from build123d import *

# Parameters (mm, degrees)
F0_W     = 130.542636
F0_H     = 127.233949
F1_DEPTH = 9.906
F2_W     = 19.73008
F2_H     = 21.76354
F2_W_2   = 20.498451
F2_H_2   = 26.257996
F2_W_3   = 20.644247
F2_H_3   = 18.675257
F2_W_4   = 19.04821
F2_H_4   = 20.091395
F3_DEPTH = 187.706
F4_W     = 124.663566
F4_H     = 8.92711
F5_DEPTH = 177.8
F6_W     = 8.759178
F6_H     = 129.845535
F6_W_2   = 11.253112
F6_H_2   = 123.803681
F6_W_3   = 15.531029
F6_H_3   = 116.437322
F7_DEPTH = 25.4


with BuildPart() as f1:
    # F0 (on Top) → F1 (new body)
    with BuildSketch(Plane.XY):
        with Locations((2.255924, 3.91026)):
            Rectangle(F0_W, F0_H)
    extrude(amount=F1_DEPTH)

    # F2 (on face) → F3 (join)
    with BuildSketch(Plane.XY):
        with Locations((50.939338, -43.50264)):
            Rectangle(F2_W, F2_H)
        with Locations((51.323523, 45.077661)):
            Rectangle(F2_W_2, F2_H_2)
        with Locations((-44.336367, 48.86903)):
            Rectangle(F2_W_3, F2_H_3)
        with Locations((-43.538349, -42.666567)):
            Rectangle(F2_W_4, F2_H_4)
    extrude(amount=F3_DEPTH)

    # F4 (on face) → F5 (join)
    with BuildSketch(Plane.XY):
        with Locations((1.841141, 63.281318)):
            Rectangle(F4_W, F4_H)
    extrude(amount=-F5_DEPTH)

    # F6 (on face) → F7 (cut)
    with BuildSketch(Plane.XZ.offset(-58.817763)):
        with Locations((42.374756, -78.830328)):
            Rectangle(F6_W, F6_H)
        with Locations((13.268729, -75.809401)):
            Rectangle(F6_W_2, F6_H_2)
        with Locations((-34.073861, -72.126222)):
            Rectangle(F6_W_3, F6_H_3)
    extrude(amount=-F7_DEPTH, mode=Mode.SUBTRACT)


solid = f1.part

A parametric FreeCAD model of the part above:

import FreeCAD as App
import Part
import Sketcher
from FreeCAD import Vector
Q = App.Units.Quantity


def add_polygon(sketch, points):
    """Adds a closed chain of lines whose ends are joined by coincident constraints."""
    first, n = sketch.GeometryCount, len(points)
    for a, b in zip(points, points[1:] + points[:1]):
        sketch.addGeometry(Part.LineSegment(App.Vector(*a, 0), App.Vector(*b, 0)), False)
    for i in range(n):
        sketch.addConstraint(Sketcher.Constraint("Coincident", first + i, 2, first + (i + 1) % n, 1))

doc = App.newDocument("Part")
params = doc.addObject("Spreadsheet::Sheet", "Params")
for row, (alias, value) in enumerate([
    ("pad1_length", "0.39 in"),
    ("sketch2_height", "0.7909998 in"),
    ("pad2_length", "7.39 in"),
    ("pad3_length", "7 in"),
    ("pocket1_length", "1 in"),
], start=1):
    params.set(f"A{row}", alias)
    params.set(f"B{row}", "=" + value)
    params.setAlias(f"B{row}", alias)

body = doc.addObject("PartDesign::Body", "Body")

# Sketch on XY plane
sketch1 = body.newObject("Sketcher::SketchObject", "Sketch")
sketch1.AttachmentSupport = (doc.getObject("XY_Plane"), [""])
sketch1.MapMode = "FlatFace"
add_polygon(sketch1, [(-63, 68), (-63, -60), (68, -60), (68, 68)])  # lines 0-3
sketch1.addConstraint([
    Sketcher.Constraint("Vertical", 0),
    Sketcher.Constraint("Horizontal", 1),
    Sketcher.Constraint("Vertical", 2),
    Sketcher.Constraint("Horizontal", 3),
    Sketcher.Constraint("DistanceY", 0, 2, 0, 1, 127.233949),
    Sketcher.Constraint("DistanceX", 1, 1, 1, 2, 130.542636),
    Sketcher.Constraint("DistanceX", -1, 1, 1, 2, 67.527242),
    Sketcher.Constraint("DistanceY", 0, 2, -1, 1, 59.706714),
])
pad1 = body.newObject("PartDesign::Pad", "Pad")
pad1.Profile = sketch1
pad1.setExpression("Length", "Params.pad1_length")

# Sketch on XY plane
sketch2 = body.newObject("Sketcher::SketchObject", "Sketch001")
sketch2.AttachmentSupport = (doc.getObject("XY_Plane"), [""])
sketch2.MapMode = "FlatFace"
add_polygon(sketch2, [(41, -33), (41, -54), (61, -54), (61, -33)])  # lines 0-3
add_polygon(sketch2, [(41, 58), (41, 32), (62, 32), (62, 58)])  # lines 4-7
add_polygon(sketch2, [(-55, 58), (-55, 40), (-34, 40), (-34, 58)])  # lines 8-11
add_polygon(sketch2, [(-53, -33), (-53, -53), (-34, -53), (-34, -33)])  # lines 12-15
sketch2.addConstraint([
    Sketcher.Constraint("Vertical", 0),
    Sketcher.Constraint("Horizontal", 1),
    Sketcher.Constraint("Vertical", 2),
    Sketcher.Constraint("Horizontal", 3),
    Sketcher.Constraint("Vertical", 4),
    Sketcher.Constraint("Horizontal", 5),
    Sketcher.Constraint("Vertical", 6),
    Sketcher.Constraint("Horizontal", 7),
    Sketcher.Constraint("Vertical", 8),
    Sketcher.Constraint("Horizontal", 9),
    Sketcher.Constraint("Vertical", 10),
    Sketcher.Constraint("Horizontal", 11),
    Sketcher.Constraint("Vertical", 12),
    Sketcher.Constraint("Horizontal", 13),
    Sketcher.Constraint("Vertical", 14),
    Sketcher.Constraint("Horizontal", 15),
    Sketcher.Constraint("Horizontal", 7, 2, 10, 2),
    Sketcher.Constraint("Horizontal", 3, 2, 14, 2),
    Sketcher.Constraint("Vertical", 3, 2, 4, 2),
    Sketcher.Constraint("Vertical", 10, 2, 13, 2),
    Sketcher.Constraint("DistanceY", 12, 2, 12, 1, Q("0.7909998 in")),
    Sketcher.Constraint("DistanceX", 1, 1, 1, 2, 19.73008),
    Sketcher.Constraint("DistanceX", 5, 1, 5, 2, 20.498451),
    Sketcher.Constraint("DistanceX", 13, 1, 13, 2, 19.04821),
    Sketcher.Constraint("DistanceY", 0, 2, 0, 1, 21.76354),
    Sketcher.Constraint("DistanceY", -1, 1, 8, 2, 39.531402),
    Sketcher.Constraint("DistanceX", 9, 1, 9, 2, 20.644247),
    Sketcher.Constraint("DistanceY", 4, 2, 4, 1, 26.257996),
    Sketcher.Constraint("DistanceY", 8, 2, 8, 1, 18.675257),
    Sketcher.Constraint("DistanceY", 0, 2, -1, 1, 54.38441),
    Sketcher.Constraint("DistanceX", -1, 1, 5, 2, 61.572749),
    Sketcher.Constraint("DistanceX", 8, 2, -1, 1, 54.65849),
])
sketch2.setExpression("Constraints[36]", "Params.sketch2_height")
pad2 = body.newObject("PartDesign::Pad", "Pad001")
pad2.Profile = sketch2
pad2.setExpression("Length", "Params.pad2_length")

# Sketch on XY plane
sketch3 = body.newObject("Sketcher::SketchObject", "Sketch002")
sketch3.AttachmentSupport = (doc.getObject("XY_Plane"), [""])
sketch3.MapMode = "FlatFace"
add_polygon(sketch3, [(-60, 68), (-60, 59), (64, 59), (64, 68)])  # lines 0-3
sketch3.addConstraint([
    Sketcher.Constraint("Vertical", 0),
    Sketcher.Constraint("Horizontal", 1),
    Sketcher.Constraint("Vertical", 2),
    Sketcher.Constraint("Horizontal", 3),
    Sketcher.Constraint("DistanceY", 0, 2, 0, 1, 8.92711),
    Sketcher.Constraint("DistanceX", 1, 1, 1, 2, 124.663566),
    Sketcher.Constraint("DistanceX", 0, 2, -1, 1, 60.490642),
    Sketcher.Constraint("DistanceY", -1, 1, 0, 2, 58.817763),
])
pad3 = body.newObject("PartDesign::Pad", "Pad002")
pad3.Profile = sketch3
pad3.setExpression("Length", "Params.pad3_length")
pad3.Reversed = True

# Sketch on XZ plane
sketch4 = body.newObject("Sketcher::SketchObject", "Sketch003")
sketch4.AttachmentSupport = (doc.getObject("XZ_Plane"), [""])
sketch4.MapMode = "FlatFace"
sketch4.AttachmentOffset = App.Placement(Vector(0, 0, -58.817763), App.Rotation())
add_polygon(sketch4, [(38, -14), (38, -144), (47, -144), (47, -14)])  # lines 0-3
add_polygon(sketch4, [(8, -14), (8, -138), (19, -138), (19, -14)])  # lines 4-7
add_polygon(sketch4, [(-42, -14), (-42, -130), (-26, -130), (-26, -14)])  # lines 8-11
sketch4.addConstraint([
    Sketcher.Constraint("Vertical", 0),
    Sketcher.Constraint("Horizontal", 1),
    Sketcher.Constraint("Vertical", 2),
    Sketcher.Constraint("Horizontal", 3),
    Sketcher.Constraint("Vertical", 4),
    Sketcher.Constraint("Horizontal", 5),
    Sketcher.Constraint("Vertical", 6),
    Sketcher.Constraint("Horizontal", 7),
    Sketcher.Constraint("Vertical", 8),
    Sketcher.Constraint("Horizontal", 9),
    Sketcher.Constraint("Vertical", 10),
    Sketcher.Constraint("Horizontal", 11),
    Sketcher.Constraint("Horizontal", 3, 2, 6, 2),
    Sketcher.Constraint("Horizontal", 7, 2, 10, 2),
    Sketcher.Constraint("DistanceX", 9, 1, 9, 2, 15.531029),
    Sketcher.Constraint("DistanceY", 4, 2, 4, 1, 123.803681),
    Sketcher.Constraint("DistanceX", 1, 1, 1, 2, 8.759178),
    Sketcher.Constraint("DistanceX", 5, 1, 5, 2, 11.253112),
    Sketcher.Constraint("DistanceY", 0, 2, 0, 1, 129.845535),
    Sketcher.Constraint("DistanceY", 8, 2, 8, 1, 116.437322),
    Sketcher.Constraint("DistanceY", 2, 2, -1, 1, 13.907561),
    Sketcher.Constraint("DistanceX", 5, 2, 1, 2, 27.85906),
    Sketcher.Constraint("DistanceX", 8, 2, 4, 2, 49.481549),
    Sketcher.Constraint("DistanceX", -1, 1, 0, 2, 37.995167),
])
pocket1 = body.newObject("PartDesign::Pocket", "Pocket")
pocket1.Profile = sketch4
pocket1.setExpression("Length", "Params.pocket1_length")

doc.recompute()
